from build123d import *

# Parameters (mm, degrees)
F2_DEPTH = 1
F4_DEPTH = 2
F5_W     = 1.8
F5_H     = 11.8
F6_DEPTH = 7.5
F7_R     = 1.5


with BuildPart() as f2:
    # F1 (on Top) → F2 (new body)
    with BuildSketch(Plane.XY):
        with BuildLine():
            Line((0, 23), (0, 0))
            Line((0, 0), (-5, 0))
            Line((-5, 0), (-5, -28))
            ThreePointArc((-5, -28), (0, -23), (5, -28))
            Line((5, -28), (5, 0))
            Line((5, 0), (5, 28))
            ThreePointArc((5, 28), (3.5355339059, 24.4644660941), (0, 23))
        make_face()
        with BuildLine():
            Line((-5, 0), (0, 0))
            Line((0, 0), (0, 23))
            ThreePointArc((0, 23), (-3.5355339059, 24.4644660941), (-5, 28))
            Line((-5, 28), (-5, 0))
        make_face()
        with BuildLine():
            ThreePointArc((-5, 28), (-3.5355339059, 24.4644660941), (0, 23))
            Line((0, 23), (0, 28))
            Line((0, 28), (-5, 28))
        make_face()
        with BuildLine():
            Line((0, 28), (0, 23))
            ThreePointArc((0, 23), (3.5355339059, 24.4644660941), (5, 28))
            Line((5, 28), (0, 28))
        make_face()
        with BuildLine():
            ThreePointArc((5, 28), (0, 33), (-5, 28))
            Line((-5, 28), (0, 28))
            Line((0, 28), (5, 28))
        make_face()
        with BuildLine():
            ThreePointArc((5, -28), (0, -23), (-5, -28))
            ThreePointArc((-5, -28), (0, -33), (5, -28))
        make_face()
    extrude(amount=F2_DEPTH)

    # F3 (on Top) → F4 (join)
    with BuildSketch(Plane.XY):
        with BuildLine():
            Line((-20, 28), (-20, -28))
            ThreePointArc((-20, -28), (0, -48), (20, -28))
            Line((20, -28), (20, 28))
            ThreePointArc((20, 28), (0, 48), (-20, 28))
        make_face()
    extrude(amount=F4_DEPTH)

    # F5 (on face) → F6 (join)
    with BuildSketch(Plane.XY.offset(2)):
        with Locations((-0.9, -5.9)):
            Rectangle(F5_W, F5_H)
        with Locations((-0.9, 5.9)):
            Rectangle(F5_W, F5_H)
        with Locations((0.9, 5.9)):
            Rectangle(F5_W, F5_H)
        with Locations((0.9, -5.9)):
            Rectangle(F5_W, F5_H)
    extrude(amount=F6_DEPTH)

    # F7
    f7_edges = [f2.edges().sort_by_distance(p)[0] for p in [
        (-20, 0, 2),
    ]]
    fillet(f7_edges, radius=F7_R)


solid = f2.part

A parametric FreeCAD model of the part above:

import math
import FreeCAD as App
import Part
import Sketcher

V = App.Vector


def edges_at(feature, points):
    """Names of the edges that pass closest to the given points."""
    edges = feature.Shape.Edges
    near = lambda p: min(range(len(edges)), key=lambda i: edges[i].distToShape(Part.Vertex(*p))[0])
    return sorted({f"Edge{near(p) + 1}" for p in points})

doc = App.newDocument("Part")
body = doc.addObject("PartDesign::Body", "Body")

sketch1 = body.newObject("Sketcher::SketchObject", "Sketch")
sketch1.AttachmentSupport = (doc.getObject("XY_Plane"), [""])
sketch1.MapMode = "FlatFace"
sketch1.addGeometry(Part.LineSegment(V(5, -28, 0), V(5, 28, 0)), False)
sketch1.addGeometry(Part.ArcOfCircle(Part.Circle(V(0, 28, 0), V(0, 0, 1), 5), math.radians(0), math.radians(180)), False)
sketch1.addGeometry(Part.LineSegment(V(-5, 28, 0), V(-5, -28, 0)), False)
sketch1.addGeometry(Part.ArcOfCircle(Part.Circle(V(0, -28, 0), V(0, 0, 1), 5), math.radians(180), math.radians(360)), False)
sketch1.addConstraint(Sketcher.Constraint("Tangent", 0, 2, 1, 1))
sketch1.addConstraint(Sketcher.Constraint("Tangent", 1, 2, 2, 1))
sketch1.addConstraint(Sketcher.Constraint("Tangent", 2, 2, 3, 1))
sketch1.addConstraint(Sketcher.Constraint("Tangent", 3, 2, 0, 1))
sketch1.addConstraint(Sketcher.Constraint("Vertical", 0))
sketch1.addConstraint(Sketcher.Constraint("Vertical", 2))
sketch1.addConstraint(Sketcher.Constraint("Symmetric", 1, 3, 3, 3, -1, 1))
sketch1.addConstraint(Sketcher.Constraint("Radius", 1, 5.0))
sketch1.addConstraint(Sketcher.Constraint("DistanceY", 0, 1, 0, 2, 56.0))
pad1 = body.newObject("PartDesign::Pad", "Pad")
pad1.Profile = sketch1
pad1.Length = 1

sketch2 = body.newObject("Sketcher::SketchObject", "Sketch001")
sketch2.AttachmentSupport = (doc.getObject("XY_Plane"), [""])
sketch2.MapMode = "FlatFace"
sketch2.addGeometry(Part.LineSegment(V(-20, 28, 0), V(-20, -28, 0)), False)
sketch2.addGeometry(Part.ArcOfCircle(Part.Circle(V(0, -28, 0), V(0, 0, 1), 20), math.radians(180), math.radians(360)), False)
sketch2.addGeometry(Part.LineSegment(V(20, -28, 0), V(20, 28, 0)), False)
sketch2.addGeometry(Part.ArcOfCircle(Part.Circle(V(0, 28, 0), V(0, 0, 1), 20), math.radians(0), math.radians(180)), False)
sketch2.addConstraint(Sketcher.Constraint("Tangent", 0, 2, 1, 1))
sketch2.addConstraint(Sketcher.Constraint("Tangent", 1, 2, 2, 1))
sketch2.addConstraint(Sketcher.Constraint("Tangent", 2, 2, 3, 1))
sketch2.addConstraint(Sketcher.Constraint("Tangent", 3, 2, 0, 1))
sketch2.addConstraint(Sketcher.Constraint("Vertical", 0))
sketch2.addConstraint(Sketcher.Constraint("Vertical", 2))
sketch2.addConstraint(Sketcher.Constraint("Symmetric", 1, 3, 3, 3, -1, 1))
sketch2.addConstraint(Sketcher.Constraint("Radius", 1, 20.0))
sketch2.addConstraint(Sketcher.Constraint("DistanceY", 0, 2, 0, 1, 56.0))
pad2 = body.newObject("PartDesign::Pad", "Pad001")
pad2.Profile = sketch2
pad2.Length = 2

sketch3 = body.newObject("Sketcher::SketchObject", "Sketch002")
sketch3.AttachmentSupport = (doc.getObject("XY_Plane"), [""])
sketch3.MapMode = "FlatFace"
sketch3.AttachmentOffset = App.Placement(V(0, 0, 2), App.Rotation())
sketch3.addGeometry(Part.LineSegment(V(-1.8, -11.8, 0), V(1.8, -11.8, 0)), False)
sketch3.addGeometry(Part.LineSegment(V(1.8, -11.8, 0), V(1.8, 11.8, 0)), False)
sketch3.addGeometry(Part.LineSegment(V(1.8, 11.8, 0), V(-1.8, 11.8, 0)), False)
sketch3.addGeometry(Part.LineSegment(V(-1.8, 11.8, 0), V(-1.8, -11.8, 0)), False)
sketch3.addConstraint(Sketcher.Constraint("Coincident", 0, 2, 1, 1))
sketch3.addConstraint(Sketcher.Constraint("Coincident", 1, 2, 2, 1))
sketch3.addConstraint(Sketcher.Constraint("Coincident", 2, 2, 3, 1))
sketch3.addConstraint(Sketcher.Constraint("Coincident", 3, 2, 0, 1))
sketch3.addConstraint(Sketcher.Constraint("Horizontal", 0))
sketch3.addConstraint(Sketcher.Constraint("Vertical", 1))
sketch3.addConstraint(Sketcher.Constraint("Horizontal", 2))
sketch3.addConstraint(Sketcher.Constraint("Vertical", 3))
sketch3.addConstraint(Sketcher.Constraint("Symmetric", 0, 2, 2, 2, -1, 1))
sketch3.addConstraint(Sketcher.Constraint("DistanceX", 0, 1, 0, 2, 3.6))
sketch3.addConstraint(Sketcher.Constraint("DistanceY", 1, 1, 1, 2, 23.6))
pad3 = body.newObject("PartDesign::Pad", "Pad002")
pad3.Profile = sketch3
pad3.Length = 7.5
doc.recompute()

fillet = body.newObject("PartDesign::Fillet", "Fillet")
fillet.Base = (pad3, edges_at(pad3, [(-20, 0, 2)]))
fillet.Radius = 1.5

doc.recompute()
